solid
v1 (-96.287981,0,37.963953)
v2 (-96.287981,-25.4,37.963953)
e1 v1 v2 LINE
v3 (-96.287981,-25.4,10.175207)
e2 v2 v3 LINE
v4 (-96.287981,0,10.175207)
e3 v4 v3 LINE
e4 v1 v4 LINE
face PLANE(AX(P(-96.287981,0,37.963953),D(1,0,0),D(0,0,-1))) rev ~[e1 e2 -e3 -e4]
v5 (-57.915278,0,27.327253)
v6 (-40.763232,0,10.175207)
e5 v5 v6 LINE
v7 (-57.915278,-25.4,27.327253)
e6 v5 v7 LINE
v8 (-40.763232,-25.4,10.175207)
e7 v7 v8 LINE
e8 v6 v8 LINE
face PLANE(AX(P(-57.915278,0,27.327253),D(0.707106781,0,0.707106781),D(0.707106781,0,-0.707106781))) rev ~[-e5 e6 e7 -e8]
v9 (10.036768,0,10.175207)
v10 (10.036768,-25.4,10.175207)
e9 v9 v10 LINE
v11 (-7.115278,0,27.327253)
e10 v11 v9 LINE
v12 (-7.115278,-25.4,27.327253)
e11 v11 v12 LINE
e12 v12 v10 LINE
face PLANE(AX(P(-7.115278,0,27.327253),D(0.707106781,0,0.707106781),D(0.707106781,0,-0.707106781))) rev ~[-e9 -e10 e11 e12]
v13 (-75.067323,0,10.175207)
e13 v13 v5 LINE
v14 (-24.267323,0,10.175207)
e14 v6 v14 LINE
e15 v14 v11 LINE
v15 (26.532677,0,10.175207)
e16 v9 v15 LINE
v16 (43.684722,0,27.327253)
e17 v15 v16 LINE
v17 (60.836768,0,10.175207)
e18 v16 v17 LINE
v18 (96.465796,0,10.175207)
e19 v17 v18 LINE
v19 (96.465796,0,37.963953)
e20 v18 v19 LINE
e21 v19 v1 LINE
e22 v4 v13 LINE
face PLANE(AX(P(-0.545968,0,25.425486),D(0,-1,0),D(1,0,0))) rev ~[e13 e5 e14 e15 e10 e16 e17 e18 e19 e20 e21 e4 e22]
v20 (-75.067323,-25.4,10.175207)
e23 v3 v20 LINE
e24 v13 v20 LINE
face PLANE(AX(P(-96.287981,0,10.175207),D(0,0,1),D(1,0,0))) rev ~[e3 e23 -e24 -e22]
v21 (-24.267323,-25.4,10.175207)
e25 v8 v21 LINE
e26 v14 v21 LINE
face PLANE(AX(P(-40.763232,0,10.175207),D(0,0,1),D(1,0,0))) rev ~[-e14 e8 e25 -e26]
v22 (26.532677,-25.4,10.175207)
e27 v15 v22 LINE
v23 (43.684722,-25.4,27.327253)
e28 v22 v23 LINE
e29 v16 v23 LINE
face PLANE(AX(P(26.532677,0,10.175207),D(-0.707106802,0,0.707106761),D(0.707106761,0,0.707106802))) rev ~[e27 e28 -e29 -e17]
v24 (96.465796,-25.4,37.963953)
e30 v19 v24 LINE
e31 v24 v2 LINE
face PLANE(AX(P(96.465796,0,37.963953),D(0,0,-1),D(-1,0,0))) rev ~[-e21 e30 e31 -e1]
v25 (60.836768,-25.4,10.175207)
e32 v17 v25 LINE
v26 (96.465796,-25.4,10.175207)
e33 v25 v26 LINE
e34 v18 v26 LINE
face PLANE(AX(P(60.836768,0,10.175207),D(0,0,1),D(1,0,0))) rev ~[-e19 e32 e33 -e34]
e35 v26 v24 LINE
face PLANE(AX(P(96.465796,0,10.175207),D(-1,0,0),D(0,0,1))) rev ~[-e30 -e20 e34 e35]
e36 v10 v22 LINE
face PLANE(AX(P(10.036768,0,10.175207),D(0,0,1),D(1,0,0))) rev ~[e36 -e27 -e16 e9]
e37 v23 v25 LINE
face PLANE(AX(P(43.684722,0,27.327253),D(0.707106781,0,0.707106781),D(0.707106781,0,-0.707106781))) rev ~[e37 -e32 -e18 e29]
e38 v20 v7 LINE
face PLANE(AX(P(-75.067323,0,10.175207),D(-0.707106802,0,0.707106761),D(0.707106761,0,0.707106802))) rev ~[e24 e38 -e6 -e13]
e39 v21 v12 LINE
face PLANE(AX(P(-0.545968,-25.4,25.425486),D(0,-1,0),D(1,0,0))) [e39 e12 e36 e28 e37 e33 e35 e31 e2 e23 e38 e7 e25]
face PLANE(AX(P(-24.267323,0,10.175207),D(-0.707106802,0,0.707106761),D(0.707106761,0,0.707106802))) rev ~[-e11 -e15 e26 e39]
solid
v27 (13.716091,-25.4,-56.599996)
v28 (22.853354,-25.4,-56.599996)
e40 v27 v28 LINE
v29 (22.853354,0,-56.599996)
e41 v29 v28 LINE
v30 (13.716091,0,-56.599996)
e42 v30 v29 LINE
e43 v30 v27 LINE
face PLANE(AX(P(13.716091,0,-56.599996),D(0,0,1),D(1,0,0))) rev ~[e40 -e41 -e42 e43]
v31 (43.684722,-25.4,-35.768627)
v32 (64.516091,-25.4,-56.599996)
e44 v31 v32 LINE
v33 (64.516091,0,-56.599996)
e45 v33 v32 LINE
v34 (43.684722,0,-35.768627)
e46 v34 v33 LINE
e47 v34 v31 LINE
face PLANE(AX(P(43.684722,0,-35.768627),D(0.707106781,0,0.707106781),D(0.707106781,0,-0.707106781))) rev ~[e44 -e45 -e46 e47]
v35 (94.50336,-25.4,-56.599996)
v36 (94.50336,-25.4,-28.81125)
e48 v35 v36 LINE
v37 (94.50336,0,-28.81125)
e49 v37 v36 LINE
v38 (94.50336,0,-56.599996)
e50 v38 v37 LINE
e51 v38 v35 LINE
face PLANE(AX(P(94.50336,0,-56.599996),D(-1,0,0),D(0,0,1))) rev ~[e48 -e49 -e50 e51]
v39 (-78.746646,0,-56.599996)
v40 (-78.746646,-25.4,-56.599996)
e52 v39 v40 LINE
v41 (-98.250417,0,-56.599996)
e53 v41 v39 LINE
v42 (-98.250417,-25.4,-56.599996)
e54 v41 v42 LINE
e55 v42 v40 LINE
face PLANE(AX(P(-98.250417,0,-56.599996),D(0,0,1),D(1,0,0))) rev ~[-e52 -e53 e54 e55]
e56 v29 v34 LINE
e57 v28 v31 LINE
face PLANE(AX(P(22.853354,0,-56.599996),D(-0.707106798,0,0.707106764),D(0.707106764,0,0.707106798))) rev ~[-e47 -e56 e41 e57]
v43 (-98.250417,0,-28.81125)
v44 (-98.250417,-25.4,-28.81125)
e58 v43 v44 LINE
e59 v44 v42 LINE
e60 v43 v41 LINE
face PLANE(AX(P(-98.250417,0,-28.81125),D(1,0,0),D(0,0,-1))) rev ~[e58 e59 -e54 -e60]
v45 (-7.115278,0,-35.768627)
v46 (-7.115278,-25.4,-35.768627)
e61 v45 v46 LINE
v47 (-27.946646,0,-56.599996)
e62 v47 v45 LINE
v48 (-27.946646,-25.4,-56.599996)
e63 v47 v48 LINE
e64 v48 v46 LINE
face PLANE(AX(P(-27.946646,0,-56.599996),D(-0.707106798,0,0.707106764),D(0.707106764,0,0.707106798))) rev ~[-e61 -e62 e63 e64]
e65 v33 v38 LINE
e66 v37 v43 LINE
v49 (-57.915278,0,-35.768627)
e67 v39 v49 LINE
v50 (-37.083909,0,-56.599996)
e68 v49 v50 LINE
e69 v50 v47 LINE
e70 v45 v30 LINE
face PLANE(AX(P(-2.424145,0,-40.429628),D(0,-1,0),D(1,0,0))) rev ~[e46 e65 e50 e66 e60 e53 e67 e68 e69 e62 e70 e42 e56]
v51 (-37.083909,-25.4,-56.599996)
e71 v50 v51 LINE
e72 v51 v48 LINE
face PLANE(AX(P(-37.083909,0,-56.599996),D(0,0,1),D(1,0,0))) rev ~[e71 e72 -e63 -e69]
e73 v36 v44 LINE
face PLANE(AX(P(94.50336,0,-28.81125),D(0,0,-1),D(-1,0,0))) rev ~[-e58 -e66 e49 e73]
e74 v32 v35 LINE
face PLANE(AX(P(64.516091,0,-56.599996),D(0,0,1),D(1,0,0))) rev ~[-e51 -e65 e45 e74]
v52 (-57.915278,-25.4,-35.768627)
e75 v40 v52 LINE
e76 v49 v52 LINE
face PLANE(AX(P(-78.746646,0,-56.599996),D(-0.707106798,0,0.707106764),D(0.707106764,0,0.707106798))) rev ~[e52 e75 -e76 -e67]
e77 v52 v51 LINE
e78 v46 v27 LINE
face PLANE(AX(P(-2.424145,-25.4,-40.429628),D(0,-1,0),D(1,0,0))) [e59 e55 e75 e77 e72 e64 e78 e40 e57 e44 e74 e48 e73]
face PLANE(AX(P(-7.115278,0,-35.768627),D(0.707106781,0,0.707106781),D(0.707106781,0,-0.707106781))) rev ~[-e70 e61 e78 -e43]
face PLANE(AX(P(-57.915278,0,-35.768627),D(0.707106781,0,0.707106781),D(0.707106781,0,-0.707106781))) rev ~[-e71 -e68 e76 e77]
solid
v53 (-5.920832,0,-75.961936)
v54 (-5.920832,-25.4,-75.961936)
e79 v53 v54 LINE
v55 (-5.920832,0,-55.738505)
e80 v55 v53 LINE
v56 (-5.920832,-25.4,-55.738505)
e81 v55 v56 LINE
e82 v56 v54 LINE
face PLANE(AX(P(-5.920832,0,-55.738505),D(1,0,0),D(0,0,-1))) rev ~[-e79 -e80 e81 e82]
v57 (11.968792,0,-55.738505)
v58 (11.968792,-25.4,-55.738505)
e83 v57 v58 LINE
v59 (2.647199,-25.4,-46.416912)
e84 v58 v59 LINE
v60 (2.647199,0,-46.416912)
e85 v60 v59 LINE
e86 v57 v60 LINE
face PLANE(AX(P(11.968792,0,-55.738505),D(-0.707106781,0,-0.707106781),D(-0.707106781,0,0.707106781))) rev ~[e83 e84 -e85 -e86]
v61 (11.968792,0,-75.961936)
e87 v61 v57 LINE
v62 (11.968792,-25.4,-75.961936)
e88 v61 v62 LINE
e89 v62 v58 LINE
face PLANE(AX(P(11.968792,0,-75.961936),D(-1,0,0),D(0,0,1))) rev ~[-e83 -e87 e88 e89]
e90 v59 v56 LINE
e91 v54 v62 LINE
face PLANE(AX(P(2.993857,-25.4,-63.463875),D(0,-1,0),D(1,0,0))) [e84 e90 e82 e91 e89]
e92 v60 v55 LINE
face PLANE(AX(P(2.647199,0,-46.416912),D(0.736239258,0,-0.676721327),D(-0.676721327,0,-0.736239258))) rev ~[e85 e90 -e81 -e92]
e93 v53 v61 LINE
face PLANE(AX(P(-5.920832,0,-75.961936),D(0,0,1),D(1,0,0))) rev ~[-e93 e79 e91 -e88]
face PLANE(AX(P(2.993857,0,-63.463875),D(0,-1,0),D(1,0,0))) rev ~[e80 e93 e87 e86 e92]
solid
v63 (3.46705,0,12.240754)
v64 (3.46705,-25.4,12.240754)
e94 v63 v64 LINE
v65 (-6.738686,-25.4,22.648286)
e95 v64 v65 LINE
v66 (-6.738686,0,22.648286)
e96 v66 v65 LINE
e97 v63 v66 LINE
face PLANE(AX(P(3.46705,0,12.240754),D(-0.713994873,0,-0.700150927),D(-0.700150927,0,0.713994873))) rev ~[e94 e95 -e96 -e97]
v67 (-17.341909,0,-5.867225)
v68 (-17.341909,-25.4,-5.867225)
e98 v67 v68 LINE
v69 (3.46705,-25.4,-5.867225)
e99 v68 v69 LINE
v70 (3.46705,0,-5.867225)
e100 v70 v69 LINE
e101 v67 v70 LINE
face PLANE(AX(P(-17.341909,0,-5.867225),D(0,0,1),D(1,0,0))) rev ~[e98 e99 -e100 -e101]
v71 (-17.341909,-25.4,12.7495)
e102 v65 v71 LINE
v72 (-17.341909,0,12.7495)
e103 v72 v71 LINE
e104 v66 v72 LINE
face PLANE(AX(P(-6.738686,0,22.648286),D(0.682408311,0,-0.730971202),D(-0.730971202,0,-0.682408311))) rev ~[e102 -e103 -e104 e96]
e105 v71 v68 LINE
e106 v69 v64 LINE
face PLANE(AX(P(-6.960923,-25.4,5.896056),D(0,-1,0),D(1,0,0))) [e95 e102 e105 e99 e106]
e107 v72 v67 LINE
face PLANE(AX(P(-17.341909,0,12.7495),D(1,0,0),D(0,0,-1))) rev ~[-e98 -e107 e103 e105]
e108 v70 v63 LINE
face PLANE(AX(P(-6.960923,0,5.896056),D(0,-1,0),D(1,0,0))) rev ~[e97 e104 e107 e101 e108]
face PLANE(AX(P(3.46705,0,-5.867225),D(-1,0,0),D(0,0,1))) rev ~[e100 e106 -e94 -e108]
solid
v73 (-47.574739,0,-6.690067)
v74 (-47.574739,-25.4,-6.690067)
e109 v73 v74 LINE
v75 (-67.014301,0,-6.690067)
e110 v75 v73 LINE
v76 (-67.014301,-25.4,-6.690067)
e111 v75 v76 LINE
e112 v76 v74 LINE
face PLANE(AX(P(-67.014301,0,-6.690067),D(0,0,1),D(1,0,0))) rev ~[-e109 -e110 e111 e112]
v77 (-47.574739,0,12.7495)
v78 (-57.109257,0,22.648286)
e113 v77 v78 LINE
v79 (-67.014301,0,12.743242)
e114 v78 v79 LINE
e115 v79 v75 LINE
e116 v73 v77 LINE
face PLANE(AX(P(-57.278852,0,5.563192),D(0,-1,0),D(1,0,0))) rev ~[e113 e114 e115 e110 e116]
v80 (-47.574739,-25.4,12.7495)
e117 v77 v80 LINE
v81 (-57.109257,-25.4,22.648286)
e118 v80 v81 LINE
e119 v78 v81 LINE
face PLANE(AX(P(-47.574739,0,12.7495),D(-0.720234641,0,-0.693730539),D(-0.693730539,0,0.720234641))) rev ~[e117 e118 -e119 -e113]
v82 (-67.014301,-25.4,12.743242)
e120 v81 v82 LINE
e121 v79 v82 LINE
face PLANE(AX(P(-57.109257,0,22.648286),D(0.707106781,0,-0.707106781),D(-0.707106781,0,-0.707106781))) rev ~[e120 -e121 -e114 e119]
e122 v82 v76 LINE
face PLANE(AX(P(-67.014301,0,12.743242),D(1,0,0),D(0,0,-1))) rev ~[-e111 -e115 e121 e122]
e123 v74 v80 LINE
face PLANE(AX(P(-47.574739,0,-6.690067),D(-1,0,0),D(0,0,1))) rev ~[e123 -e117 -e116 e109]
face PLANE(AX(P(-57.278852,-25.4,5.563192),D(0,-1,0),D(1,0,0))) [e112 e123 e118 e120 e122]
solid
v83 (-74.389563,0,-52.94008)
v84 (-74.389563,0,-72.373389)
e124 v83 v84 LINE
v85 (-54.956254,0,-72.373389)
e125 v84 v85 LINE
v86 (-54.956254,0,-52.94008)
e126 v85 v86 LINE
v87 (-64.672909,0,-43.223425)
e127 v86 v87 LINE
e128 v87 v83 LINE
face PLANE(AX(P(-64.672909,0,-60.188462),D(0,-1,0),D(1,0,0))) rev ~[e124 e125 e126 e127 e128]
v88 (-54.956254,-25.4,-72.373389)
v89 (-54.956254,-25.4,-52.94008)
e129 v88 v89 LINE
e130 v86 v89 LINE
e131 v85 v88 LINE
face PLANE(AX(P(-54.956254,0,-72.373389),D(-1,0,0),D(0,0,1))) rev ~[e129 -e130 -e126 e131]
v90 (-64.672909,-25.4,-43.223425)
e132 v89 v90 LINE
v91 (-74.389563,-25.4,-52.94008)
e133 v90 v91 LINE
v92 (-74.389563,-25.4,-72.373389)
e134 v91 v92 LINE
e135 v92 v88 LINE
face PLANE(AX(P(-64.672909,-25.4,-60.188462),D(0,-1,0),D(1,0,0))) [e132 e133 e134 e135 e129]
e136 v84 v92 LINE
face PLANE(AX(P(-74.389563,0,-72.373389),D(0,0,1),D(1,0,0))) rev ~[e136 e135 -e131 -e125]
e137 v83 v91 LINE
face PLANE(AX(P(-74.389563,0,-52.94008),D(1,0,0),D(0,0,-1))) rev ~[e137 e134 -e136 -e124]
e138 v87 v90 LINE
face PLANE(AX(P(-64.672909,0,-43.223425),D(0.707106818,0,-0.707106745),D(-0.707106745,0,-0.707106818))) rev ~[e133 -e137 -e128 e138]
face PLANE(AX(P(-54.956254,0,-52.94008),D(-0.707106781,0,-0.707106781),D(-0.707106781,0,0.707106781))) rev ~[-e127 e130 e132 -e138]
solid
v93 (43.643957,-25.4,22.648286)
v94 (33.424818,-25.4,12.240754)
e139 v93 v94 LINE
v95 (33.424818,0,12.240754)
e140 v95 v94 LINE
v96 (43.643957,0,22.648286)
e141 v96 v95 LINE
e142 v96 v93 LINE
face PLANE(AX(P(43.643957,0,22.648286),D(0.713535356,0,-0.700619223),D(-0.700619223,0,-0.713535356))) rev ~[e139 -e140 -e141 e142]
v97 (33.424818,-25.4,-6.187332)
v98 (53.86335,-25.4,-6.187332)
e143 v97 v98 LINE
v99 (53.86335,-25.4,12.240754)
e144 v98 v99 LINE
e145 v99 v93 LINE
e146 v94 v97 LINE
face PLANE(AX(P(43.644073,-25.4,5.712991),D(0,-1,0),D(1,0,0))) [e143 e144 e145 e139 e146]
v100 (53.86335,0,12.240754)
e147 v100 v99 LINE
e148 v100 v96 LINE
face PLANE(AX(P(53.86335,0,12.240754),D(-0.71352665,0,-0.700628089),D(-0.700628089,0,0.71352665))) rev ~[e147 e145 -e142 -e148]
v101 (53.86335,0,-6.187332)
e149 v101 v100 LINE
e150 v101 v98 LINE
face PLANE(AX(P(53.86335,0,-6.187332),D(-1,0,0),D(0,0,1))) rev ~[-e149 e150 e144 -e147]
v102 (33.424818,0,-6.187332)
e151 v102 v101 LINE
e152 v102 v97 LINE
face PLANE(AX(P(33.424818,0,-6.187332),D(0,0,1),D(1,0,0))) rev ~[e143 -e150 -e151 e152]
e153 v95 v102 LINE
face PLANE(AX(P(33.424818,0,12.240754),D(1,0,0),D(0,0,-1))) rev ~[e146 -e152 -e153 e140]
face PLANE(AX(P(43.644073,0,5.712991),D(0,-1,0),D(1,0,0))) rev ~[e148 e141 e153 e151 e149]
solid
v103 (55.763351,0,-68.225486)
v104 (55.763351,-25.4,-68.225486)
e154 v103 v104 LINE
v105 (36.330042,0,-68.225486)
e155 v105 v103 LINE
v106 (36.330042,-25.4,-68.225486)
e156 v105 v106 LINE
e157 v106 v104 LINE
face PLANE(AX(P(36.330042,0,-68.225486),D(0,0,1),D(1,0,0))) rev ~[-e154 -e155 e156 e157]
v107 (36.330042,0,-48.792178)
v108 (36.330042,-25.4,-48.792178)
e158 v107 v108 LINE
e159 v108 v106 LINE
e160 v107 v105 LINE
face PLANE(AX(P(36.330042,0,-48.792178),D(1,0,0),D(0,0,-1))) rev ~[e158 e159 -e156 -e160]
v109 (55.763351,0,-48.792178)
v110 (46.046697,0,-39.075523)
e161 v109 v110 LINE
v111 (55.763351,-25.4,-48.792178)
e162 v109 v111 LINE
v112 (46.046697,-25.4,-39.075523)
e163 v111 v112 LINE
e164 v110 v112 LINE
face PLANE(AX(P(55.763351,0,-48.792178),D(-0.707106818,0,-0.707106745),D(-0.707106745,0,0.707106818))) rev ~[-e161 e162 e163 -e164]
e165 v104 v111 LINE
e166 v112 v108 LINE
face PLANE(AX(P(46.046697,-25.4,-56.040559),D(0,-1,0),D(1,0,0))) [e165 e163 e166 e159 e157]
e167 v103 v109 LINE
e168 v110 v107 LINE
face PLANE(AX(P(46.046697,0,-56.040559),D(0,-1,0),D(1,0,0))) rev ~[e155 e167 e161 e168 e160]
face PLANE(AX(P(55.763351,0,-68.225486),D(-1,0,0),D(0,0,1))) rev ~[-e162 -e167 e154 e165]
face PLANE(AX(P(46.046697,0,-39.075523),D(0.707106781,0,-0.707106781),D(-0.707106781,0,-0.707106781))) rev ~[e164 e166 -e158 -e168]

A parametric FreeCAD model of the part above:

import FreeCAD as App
import Part
import Sketcher
Q = App.Units.Quantity


def add_polygon(sketch, points):
    """Adds a closed chain of lines whose ends are joined by coincident constraints."""
    first, n = sketch.GeometryCount, len(points)
    for a, b in zip(points, points[1:] + points[:1]):
        sketch.addGeometry(Part.LineSegment(App.Vector(*a, 0), App.Vector(*b, 0)), False)
    for i in range(n):
        sketch.addConstraint(Sketcher.Constraint("Coincident", first + i, 2, first + (i + 1) % n, 1))

doc = App.newDocument("Part")
body = doc.addObject("PartDesign::Body", "Body")
body.AllowCompound = True

# Sketch on XZ plane
sketch1 = body.newObject("Sketcher::SketchObject", "Sketch")
sketch1.AttachmentSupport = (doc.getObject("XZ_Plane"), [""])
sketch1.MapMode = "FlatFace"
add_polygon(sketch1, [(96, 38), (-96, 38), (-96, 10), (-75, 10), (-58, 27), (-41, 10), (-24, 10), (-7, 27), (10, 10), (27, 10), (44, 27), (61, 10), (96, 10)])  # lines 0-12
add_polygon(sketch1, [(95, -29), (-98, -29), (-98, -57), (-79, -57), (-58, -36), (-37, -57), (-28, -57), (-7, -36), (14, -57), (23, -57), (44, -36), (65, -57), (95, -57)])  # lines 13-25
add_polygon(sketch1, [(-48, 13), (-57, 23), (-67, 13), (-67, -7), (-48, -7)])  # lines 26-30
add_polygon(sketch1, [(3, 12), (-7, 23), (-17, 13), (-17, -6), (3, -6)])  # lines 31-35
add_polygon(sketch1, [(54, 12), (44, 23), (33, 12), (33, -6), (54, -6)])  # lines 36-40
add_polygon(sketch1, [(-55, -53), (-65, -43), (-74, -53), (-74, -72), (-55, -72)])  # lines 41-45
add_polygon(sketch1, [(12, -56), (3, -46), (-6, -56), (-6, -76), (12, -76)])  # lines 46-50
add_polygon(sketch1, [(56, -49), (46, -39), (36, -49), (36, -68), (56, -68)])  # lines 51-55
sketch1.addConstraint(Sketcher.Constraint("Horizontal", 0))
sketch1.addConstraint(Sketcher.Constraint("Vertical", 1))
sketch1.addConstraint(Sketcher.Constraint("Horizontal", 2))
sketch1.addConstraint(Sketcher.Constraint("Horizontal", 5))
sketch1.addConstraint(Sketcher.Constraint("Horizontal", 8))
sketch1.addConstraint(Sketcher.Constraint("Horizontal", 11))
sketch1.addConstraint(Sketcher.Constraint("Vertical", 12))
sketch1.addConstraint(Sketcher.Constraint("Horizontal", 13))
sketch1.addConstraint(Sketcher.Constraint("Vertical", 14))
sketch1.addConstraint(Sketcher.Constraint("Horizontal", 15))
sketch1.addConstraint(Sketcher.Constraint("Horizontal", 18))
sketch1.addConstraint(Sketcher.Constraint("Horizontal", 21))
sketch1.addConstraint(Sketcher.Constraint("Horizontal", 24))
sketch1.addConstraint(Sketcher.Constraint("Vertical", 25))
sketch1.addConstraint(Sketcher.Constraint("Vertical", 28))
sketch1.addConstraint(Sketcher.Constraint("Horizontal", 29))
sketch1.addConstraint(Sketcher.Constraint("Vertical", 30))
sketch1.addConstraint(Sketcher.Constraint("Vertical", 33))
sketch1.addConstraint(Sketcher.Constraint("Horizontal", 34))
sketch1.addConstraint(Sketcher.Constraint("Vertical", 35))
sketch1.addConstraint(Sketcher.Constraint("Vertical", 38))
sketch1.addConstraint(Sketcher.Constraint("Horizontal", 39))
sketch1.addConstraint(Sketcher.Constraint("Vertical", 40))
sketch1.addConstraint(Sketcher.Constraint("Vertical", 43))
sketch1.addConstraint(Sketcher.Constraint("Horizontal", 44))
sketch1.addConstraint(Sketcher.Constraint("Vertical", 45))
sketch1.addConstraint(Sketcher.Constraint("Vertical", 48))
sketch1.addConstraint(Sketcher.Constraint("Horizontal", 49))
sketch1.addConstraint(Sketcher.Constraint("Vertical", 50))
sketch1.addConstraint(Sketcher.Constraint("Vertical", 53))
sketch1.addConstraint(Sketcher.Constraint("Horizontal", 54))
sketch1.addConstraint(Sketcher.Constraint("Vertical", 55))
sketch1.addConstraint(Sketcher.Constraint("Perpendicular", 3, 4))
sketch1.addConstraint(Sketcher.Constraint("Perpendicular", 4, 6))
sketch1.addConstraint(Sketcher.Constraint("Perpendicular", 6, 7))
sketch1.addConstraint(Sketcher.Constraint("Perpendicular", 7, 9))
sketch1.addConstraint(Sketcher.Constraint("Perpendicular", 9, 10))
sketch1.addConstraint(Sketcher.Constraint("Perpendicular", 10, 16))
sketch1.addConstraint(Sketcher.Constraint("Perpendicular", 16, 17))
sketch1.addConstraint(Sketcher.Constraint("Perpendicular", 17, 19))
sketch1.addConstraint(Sketcher.Constraint("Perpendicular", 19, 20))
sketch1.addConstraint(Sketcher.Constraint("Perpendicular", 20, 22))
sketch1.addConstraint(Sketcher.Constraint("Perpendicular", 22, 23))
sketch1.addConstraint(Sketcher.Constraint("Perpendicular", 23, 27))
sketch1.addConstraint(Sketcher.Constraint("Perpendicular", 27, 41))
sketch1.addConstraint(Sketcher.Constraint("Perpendicular", 41, 42))
sketch1.addConstraint(Sketcher.Constraint("Perpendicular", 42, 46))
sketch1.addConstraint(Sketcher.Constraint("Parallel", 46, 51))
sketch1.addConstraint(Sketcher.Constraint("Perpendicular", 51, 52))
sketch1.addConstraint(Sketcher.Constraint("Horizontal", 2, 2, 4, 2))
sketch1.addConstraint(Sketcher.Constraint("Horizontal", 3, 2, 6, 2))
sketch1.addConstraint(Sketcher.Constraint("Horizontal", 5, 2, 7, 2))
sketch1.addConstraint(Sketcher.Constraint("Horizontal", 6, 2, 9, 2))
sketch1.addConstraint(Sketcher.Constraint("Horizontal", 8, 2, 10, 2))
sketch1.addConstraint(Sketcher.Constraint("Horizontal", 15, 2, 17, 2))
sketch1.addConstraint(Sketcher.Constraint("Horizontal", 16, 2, 19, 2))
sketch1.addConstraint(Sketcher.Constraint("Horizontal", 18, 2, 20, 2))
sketch1.addConstraint(Sketcher.Constraint("Horizontal", 19, 2, 22, 2))
sketch1.addConstraint(Sketcher.Constraint("Horizontal", 21, 2, 23, 2))
sketch1.addConstraint(Sketcher.Constraint("Horizontal", 26, 2, 31, 2))
sketch1.addConstraint(Sketcher.Constraint("Horizontal", 30, 2, 32, 2))
sketch1.addConstraint(Sketcher.Constraint("Horizontal", 31, 2, 36, 2))
sketch1.addConstraint(Sketcher.Constraint("Horizontal", 35, 2, 37, 2))
sketch1.addConstraint(Sketcher.Constraint("Horizontal", 37, 2, 40, 2))
sketch1.addConstraint(Sketcher.Constraint("Horizontal", 42, 2, 45, 2))
sketch1.addConstraint(Sketcher.Constraint("Horizontal", 47, 2, 50, 2))
sketch1.addConstraint(Sketcher.Constraint("Horizontal", 52, 2, 55, 2))
sketch1.addConstraint(Sketcher.Constraint("Vertical", 3, 2, 16, 2))
sketch1.addConstraint(Sketcher.Constraint("Vertical", 6, 2, 19, 2))
sketch1.addConstraint(Sketcher.Constraint("Vertical", 9, 2, 22, 2))
sketch1.addConstraint(Sketcher.Constraint("Equal", 5, 8))
sketch1.addConstraint(Sketcher.Constraint("Equal", 0, 13))
sketch1.addConstraint(Sketcher.Constraint("Equal", 44, 54))
sketch1.addConstraint(Sketcher.Constraint("Equal", 12, 14))
sketch1.addConstraint(Sketcher.Constraint("Equal", 54, 28))
sketch1.addConstraint(Sketcher.Constraint("Equal", 28, 43))
sketch1.addConstraint(Sketcher.Constraint("Equal", 45, 53))
sketch1.addConstraint(Sketcher.Constraint("Equal", 3, 4))
sketch1.addConstraint(Sketcher.Constraint("DistanceX", 2, 2, 5, 2, Q("2 in")))
sketch1.addConstraint(Sketcher.Constraint("DistanceY", 13, 2, 1, 2, Q("1.5348999 in")))
sketch1.addConstraint(Sketcher.Constraint("DistanceX", 2, 1, 2, 2, Q("21.220658 mm")))
sketch1.addConstraint(Sketcher.Constraint("DistanceX", 5, 1, 5, 2, Q("16.495909 mm")))
sketch1.addConstraint(Sketcher.Constraint("DistanceX", 15, 1, 15, 2, Q("19.503771 mm")))
sketch1.addConstraint(Sketcher.Constraint("DistanceX", 24, 1, 24, 2, Q("29.987269 mm")))
sketch1.addConstraint(Sketcher.Constraint("DistanceX", 34, 1, 34, 2, Q("20.808959 mm")))
sketch1.addConstraint(Sketcher.Constraint("DistanceX", 39, 1, 39, 2, Q("20.438532 mm")))
sketch1.addConstraint(Sketcher.Constraint("DistanceX", 44, 1, 44, 2, Q("19.433309 mm")))
sketch1.addConstraint(Sketcher.Constraint("DistanceY", 35, 1, 35, 2, Q("18.107979 mm")))
sketch1.addConstraint(Sketcher.Constraint("DistanceY", 48, 2, 48, 1, Q("20.223431 mm")))
sketch1.addConstraint(Sketcher.Constraint("DistanceX", 27, 2, -1, 1, Q("67.014301 mm")))
sketch1.addConstraint(Sketcher.Constraint("DistanceY", -1, 1, 30, 2, Q("12.7495 mm")))
sketch1.addConstraint(Sketcher.Constraint("DistanceX", -1, 1, 46, 2, Q("2.647199 mm")))
sketch1.addConstraint(Sketcher.Constraint("DistanceY", 3, 2, 0, 2, Q("10.6367 mm")))
sketch1.addConstraint(Sketcher.Constraint("DistanceY", 35, 2, 6, 2, Q("15.086499 mm")))
sketch1.addConstraint(Sketcher.Constraint("DistanceX", 41, 2, 17, 2, Q("27.589 mm")))
sketch1.addConstraint(Sketcher.Constraint("DistanceX", 49, 2, 20, 2, Q("1.747299 mm")))
sketch1.addConstraint(Sketcher.Constraint("Distance", 31, Q("14.57648 mm")))
sketch1.addConstraint(Sketcher.Constraint("DistanceX", 0, 2, 0, 1, Q("192.753777 mm")))
sketch1.addConstraint(Sketcher.Constraint("DistanceX", 29, 1, 29, 2, Q("19.439562 mm")))
sketch1.addConstraint(Sketcher.Constraint("DistanceX", 49, 1, 49, 2, Q("17.889624 mm")))
sketch1.addConstraint(Sketcher.Constraint("DistanceY", 30, 1, 30, 2, Q("19.439567 mm")))
sketch1.addConstraint(Sketcher.Constraint("DistanceY", 33, 2, 33, 1, Q("18.616725 mm")))
sketch1.addConstraint(Sketcher.Constraint("DistanceY", 38, 2, 38, 1, Q("18.428086 mm")))
sketch1.addConstraint(Sketcher.Constraint("DistanceX", 0, 2, -1, 1, Q("96.287981 mm")))
sketch1.addConstraint(Sketcher.Constraint("DistanceX", 32, 2, -1, 1, Q("17.341909 mm")))
sketch1.addConstraint(Sketcher.Constraint("DistanceX", -1, 1, 37, 2, Q("33.424818 mm")))
sketch1.addConstraint(Sketcher.Constraint("DistanceY", 42, 2, -1, 1, Q("52.94008 mm")))
sketch1.addConstraint(Sketcher.Constraint("DistanceX", -1, 1, 54, 2, Q("55.763351 mm")))
sketch1.addConstraint(Sketcher.Constraint("DistanceX", 3, 2, 26, 2, Q("0.806021 mm")))
sketch1.addConstraint(Sketcher.Constraint("DistanceX", 8, 2, 36, 2, Q("17.11128 mm")))
sketch1.addConstraint(Sketcher.Constraint("DistanceY", 20, 2, 47, 2, Q("0.861491 mm")))
sketch1.addConstraint(Sketcher.Constraint("DistanceY", 51, 2, 39, 2, Q("32.888191 mm")))
pad1 = body.newObject("PartDesign::Pad", "Pad")
pad1.Profile = sketch1
pad1.Length = Q("1 in")

doc.recompute()
